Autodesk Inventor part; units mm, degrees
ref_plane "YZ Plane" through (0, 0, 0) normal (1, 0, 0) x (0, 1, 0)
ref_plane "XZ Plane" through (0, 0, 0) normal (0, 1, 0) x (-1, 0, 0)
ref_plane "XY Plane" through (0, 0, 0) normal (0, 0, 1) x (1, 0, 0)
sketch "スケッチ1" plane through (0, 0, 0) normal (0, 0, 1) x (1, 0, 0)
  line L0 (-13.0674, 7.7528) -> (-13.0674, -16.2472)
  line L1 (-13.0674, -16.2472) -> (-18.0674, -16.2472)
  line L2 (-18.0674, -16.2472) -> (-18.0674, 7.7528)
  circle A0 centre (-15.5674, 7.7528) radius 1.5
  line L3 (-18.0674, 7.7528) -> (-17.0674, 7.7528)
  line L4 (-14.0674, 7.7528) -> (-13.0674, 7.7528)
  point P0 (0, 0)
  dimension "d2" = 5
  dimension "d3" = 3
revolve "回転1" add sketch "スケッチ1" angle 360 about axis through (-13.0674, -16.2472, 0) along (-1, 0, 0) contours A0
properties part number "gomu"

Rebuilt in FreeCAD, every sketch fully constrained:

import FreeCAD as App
import Part
import Sketcher

V = App.Vector
Q = App.Units.Quantity

doc = App.newDocument("Part")
params = doc.addObject("Spreadsheet::Sheet", "Params")
for row, (alias, value) in enumerate([
    ("sketch1_diameter", "3 mm"),
    ("sketch1_width", "10 mm"),
    ("revolution_angle", "360 deg"),
], start=1):
    params.set(f"A{row}", alias)
    params.set(f"B{row}", "=" + value)
    params.setAlias(f"B{row}", alias)

body = doc.addObject("PartDesign::Body", "Body")

# Sketch on XY plane
sketch1 = doc.addObject("Sketcher::SketchObject", "Sketch")
body.addObject(sketch1)
sketch1.AttachmentSupport = (doc.XY_Plane, [""])
sketch1.MapMode = "FlatFace"
sketch1.addGeometry(Part.Circle(V(-15.5674, 7.7528, 0), V(0, 0, 1), 1.5), False)
sketch1.addGeometry(Part.LineSegment(V(-15.5674, -16.2472, 0), V(-25.5674, -16.2472, 0)), True)  # axis
sketch1.addConstraint([
    Sketcher.Constraint("Horizontal", 1),
    Sketcher.Constraint("Vertical", 0, 3, 1, 1),
    Sketcher.Constraint("Diameter", 0, Q("3 mm")),
    Sketcher.Constraint("DistanceX", 1, 2, 1, 1, Q("10 mm")),
    Sketcher.Constraint("DistanceY", 1, 1, 0, 3, Q("24 mm")),
    Sketcher.Constraint("DistanceX", 0, 3, -1, 1, Q("15.5674 mm")),
    Sketcher.Constraint("DistanceY", -1, 1, 0, 3, Q("7.7528 mm")),
])
sketch1.setExpression("Constraints[2]", "Params.sketch1_diameter")
sketch1.setExpression("Constraints[3]", "Params.sketch1_width")
revolution = doc.addObject("PartDesign::Revolution", "Revolution")
body.addObject(revolution)
revolution.Profile = sketch1
revolution.ReferenceAxis = (sketch1, ["Axis0"])
revolution.setExpression("Angle", "Params.revolution_angle")

doc.recompute()
